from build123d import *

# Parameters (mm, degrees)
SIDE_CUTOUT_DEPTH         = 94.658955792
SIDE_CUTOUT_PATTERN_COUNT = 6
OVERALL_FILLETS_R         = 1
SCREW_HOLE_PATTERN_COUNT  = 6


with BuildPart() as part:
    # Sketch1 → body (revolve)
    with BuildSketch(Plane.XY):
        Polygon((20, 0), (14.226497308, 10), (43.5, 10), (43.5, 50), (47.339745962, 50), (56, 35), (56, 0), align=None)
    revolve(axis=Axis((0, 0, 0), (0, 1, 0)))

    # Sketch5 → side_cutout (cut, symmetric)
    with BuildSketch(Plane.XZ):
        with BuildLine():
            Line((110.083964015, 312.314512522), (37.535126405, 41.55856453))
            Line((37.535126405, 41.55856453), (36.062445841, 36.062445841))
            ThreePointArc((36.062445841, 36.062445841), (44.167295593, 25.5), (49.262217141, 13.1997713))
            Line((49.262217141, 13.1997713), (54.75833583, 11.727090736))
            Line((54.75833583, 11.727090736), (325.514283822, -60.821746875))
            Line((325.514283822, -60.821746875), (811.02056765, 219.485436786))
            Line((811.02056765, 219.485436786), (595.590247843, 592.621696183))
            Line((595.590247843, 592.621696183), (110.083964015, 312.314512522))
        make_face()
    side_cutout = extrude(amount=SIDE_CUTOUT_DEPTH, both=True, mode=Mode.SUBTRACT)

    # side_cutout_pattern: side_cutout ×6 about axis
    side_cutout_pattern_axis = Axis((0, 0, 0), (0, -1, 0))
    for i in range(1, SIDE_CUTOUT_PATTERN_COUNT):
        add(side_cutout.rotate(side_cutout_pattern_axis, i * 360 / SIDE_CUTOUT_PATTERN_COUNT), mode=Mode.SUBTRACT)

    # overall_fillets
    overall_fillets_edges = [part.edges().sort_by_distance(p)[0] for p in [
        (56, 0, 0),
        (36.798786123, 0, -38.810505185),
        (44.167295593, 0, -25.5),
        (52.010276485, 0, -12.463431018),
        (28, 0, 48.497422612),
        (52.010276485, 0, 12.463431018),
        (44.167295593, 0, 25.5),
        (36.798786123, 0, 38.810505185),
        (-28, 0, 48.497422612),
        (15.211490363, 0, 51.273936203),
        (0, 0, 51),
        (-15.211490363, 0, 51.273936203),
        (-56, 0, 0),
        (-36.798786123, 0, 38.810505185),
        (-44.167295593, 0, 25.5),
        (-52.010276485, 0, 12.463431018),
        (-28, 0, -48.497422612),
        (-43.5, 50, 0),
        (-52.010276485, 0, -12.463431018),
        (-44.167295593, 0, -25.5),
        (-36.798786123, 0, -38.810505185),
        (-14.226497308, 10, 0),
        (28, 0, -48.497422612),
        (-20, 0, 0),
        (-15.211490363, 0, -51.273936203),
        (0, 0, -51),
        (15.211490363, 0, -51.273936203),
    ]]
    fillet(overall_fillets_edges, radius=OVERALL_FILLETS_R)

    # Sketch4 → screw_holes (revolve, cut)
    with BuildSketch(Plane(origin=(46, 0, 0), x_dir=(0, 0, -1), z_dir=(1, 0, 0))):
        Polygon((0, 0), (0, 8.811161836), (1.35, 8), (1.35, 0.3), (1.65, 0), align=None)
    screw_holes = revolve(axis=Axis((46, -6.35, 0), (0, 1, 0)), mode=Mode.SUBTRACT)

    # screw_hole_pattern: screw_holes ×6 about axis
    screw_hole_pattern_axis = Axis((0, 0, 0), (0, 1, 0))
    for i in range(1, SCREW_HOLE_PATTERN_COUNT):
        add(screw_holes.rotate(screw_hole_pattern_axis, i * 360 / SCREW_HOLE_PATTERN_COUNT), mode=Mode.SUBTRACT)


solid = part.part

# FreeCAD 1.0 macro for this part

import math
import FreeCAD as App
import Part
import Sketcher

V = App.Vector
Q = App.Units.Quantity


def edges_at(feature, points):
    """Names of the edges that pass closest to the given points."""
    edges = feature.Shape.Edges
    near = lambda p: min(range(len(edges)), key=lambda i: edges[i].distToShape(Part.Vertex(*p))[0])
    return sorted({f"Edge{near(p) + 1}" for p in points})

doc = App.newDocument("Part")
body = doc.addObject("PartDesign::Body", "Body")

# Sketch on XY plane
sketch1 = body.newObject("Sketcher::SketchObject", "Sketch")
sketch1.AttachmentSupport = (doc.getObject("XY_Plane"), [""])
sketch1.MapMode = "FlatFace"
sketch1.addGeometry([
    Part.LineSegment(V(14.2, 10, 0), V(20, 0, 0)),  # 0
    Part.LineSegment(V(20, 0, 0), V(56, 0, 0)),  # 1
    Part.LineSegment(V(56, 0, 0), V(56, 35, 0)),  # 2
    Part.LineSegment(V(56, 35, 0), V(47.3, 50, 0)),  # 3
    Part.LineSegment(V(47.3, 50, 0), V(43.5, 50, 0)),  # 4
    Part.LineSegment(V(43.5, 50, 0), V(43.5, 10, 0)),  # 5
    Part.LineSegment(V(43.5, 10, 0), V(14.2, 10, 0)),  # 6
], False)
sketch1.addConstraint([
    Sketcher.Constraint("Coincident", 0, 2, 1, 1),
    Sketcher.Constraint("Coincident", 1, 2, 2, 1),
    Sketcher.Constraint("Coincident", 2, 2, 3, 1),
    Sketcher.Constraint("Coincident", 3, 2, 4, 1),
    Sketcher.Constraint("Coincident", 4, 2, 5, 1),
    Sketcher.Constraint("Coincident", 5, 2, 6, 1),
    Sketcher.Constraint("Coincident", 6, 2, 0, 1),
    Sketcher.Constraint("Horizontal", 1),
    Sketcher.Constraint("Vertical", 2),
    Sketcher.Constraint("Horizontal", 4),
    Sketcher.Constraint("Vertical", 5),
    Sketcher.Constraint("Horizontal", 6),
    Sketcher.Constraint("PointOnObject", 0, 2, -1),
    Sketcher.Constraint("Parallel", 0, 3),
    Sketcher.Constraint("DistanceX", 1, 1, 1, 2, 36.0),
    Sketcher.Constraint("DistanceY", 2, 1, 2, 2, 35.0),
    Sketcher.Constraint("DistanceY", 5, 2, 5, 1, 40.0),
    Sketcher.Constraint("Angle", 0, Q("-60 deg")),
    Sketcher.Constraint("DistanceX", -1, 1, 0, 2, 20.0),
    Sketcher.Constraint("DistanceY", -1, 1, 3, 2, 50.0),
    Sketcher.Constraint("DistanceX", -1, 1, 4, 2, 43.5),
])
revolution = body.newObject("PartDesign::Revolution", "Revolution")
revolution.Profile = sketch1
revolution.ReferenceAxis = (sketch1, ["V_Axis"])
revolution.Angle = 360

# Sketch on XZ plane
sketch2 = body.newObject("Sketcher::SketchObject", "Sketch001")
sketch2.AttachmentSupport = (doc.getObject("XZ_Plane"), [""])
sketch2.MapMode = "FlatFace"
sketch2.addGeometry([
    Part.LineSegment(V(110, 312, 0), V(38, 42, 0)),  # 0
    Part.LineSegment(V(38, 42, 0), V(36, 36, 0)),  # 1
    Part.ArcOfCircle(Part.Circle(V(0, 0, 0), V(0, 0, 1), 51), math.radians(15), math.radians(45)),  # 2
    Part.LineSegment(V(49, 13, 0), V(55, 12, 0)),  # 3
    Part.LineSegment(V(55, 12, 0), V(326, -61, 0)),  # 4
    Part.LineSegment(V(326, -61, 0), V(811, 219, 0)),  # 5
    Part.LineSegment(V(811, 219, 0), V(596, 593, 0)),  # 6
    Part.LineSegment(V(596, 593, 0), V(110, 312, 0)),  # 7
], False)
sketch2.addConstraint([
    Sketcher.Constraint("Coincident", 0, 2, 1, 1),
    Sketcher.Constraint("Coincident", 1, 2, 2, 2),
    Sketcher.Constraint("Coincident", 2, 1, 3, 1),
    Sketcher.Constraint("Coincident", 3, 2, 4, 1),
    Sketcher.Constraint("Coincident", 4, 2, 5, 1),
    Sketcher.Constraint("Coincident", 5, 2, 6, 1),
    Sketcher.Constraint("Coincident", 6, 2, 7, 1),
    Sketcher.Constraint("Coincident", 7, 2, 0, 1),
    Sketcher.Constraint("Coincident", 2, 3, -1, 1),
    Sketcher.Constraint("Parallel", 0, 1),
    Sketcher.Constraint("Perpendicular", 1, 3),
    Sketcher.Constraint("Parallel", 3, 4),
    Sketcher.Constraint("Perpendicular", 5, 6),
    Sketcher.Constraint("Perpendicular", 6, 7),
    Sketcher.Constraint("Equal", 1, 3),
    Sketcher.Constraint("Equal", 0, 4),
    Sketcher.Constraint("Equal", 5, 7),
    Sketcher.Constraint("Radius", 2, 51.0),
    Sketcher.Constraint("Angle", 0, Q("-105 deg")),
    Sketcher.Constraint("Angle", 5, Q("30 deg")),
    Sketcher.Constraint("Distance", 1, 5.690001),
    Sketcher.Constraint("Distance", 6, 430.86064),
    Sketcher.Constraint("DistanceY", -1, 1, 2, 1, 13.199771),
    Sketcher.Constraint("DistanceX", 3, 2, 5, 2, 756.262232),
])
pocket1 = body.newObject("PartDesign::Pocket", "Pocket")
pocket1.Profile = sketch2
pocket1.Length = 189.317912
pocket1.Midplane = True
doc.recompute()

polarpattern = body.newObject("PartDesign::PolarPattern", "PolarPattern")
polarpattern.Originals = [pocket1]
polarpattern.Axis = (doc.getObject("Y_Axis"), [""])
polarpattern.Angle = 360
polarpattern.Occurrences = 6
body.Tip = polarpattern
doc.recompute()

fillet = body.newObject("PartDesign::Fillet", "Fillet")
fillet.Base = (polarpattern, edges_at(polarpattern, [
    (56, 0, 0),
    (36.799, 0, -38.811),
    (44.167, 0, -25.5),
    (52.01, 0, -12.463),
    (28, 0, 48.497),
    (52.01, 0, 12.463),
    (44.167, 0, 25.5),
    (36.799, 0, 38.811),
    (-28, 0, 48.497),
    (15.211, 0, 51.274),
    (0, 0, 51),
    (-15.211, 0, 51.274),
    (-56, 0, 0),
    (-36.799, 0, 38.811),
    (-44.167, 0, 25.5),
    (-52.01, 0, 12.463),
    (-28, 0, -48.497),
    (-43.5, 50, 0),
    (-52.01, 0, -12.463),
    (-44.167, 0, -25.5),
    (-36.799, 0, -38.811),
    (-14.226, 10, 0),
    (28, 0, -48.497),
    (-20, 0, 0),
    (-15.211, 0, -51.274),
    (0, 0, -51),
    (15.211, 0, -51.274),
]))
fillet.Radius = 1

# Sketch on YZ plane
sketch3 = body.newObject("Sketcher::SketchObject", "Sketch002")
sketch3.AttachmentSupport = (doc.getObject("YZ_Plane"), [""])
sketch3.MapMode = "FlatFace"
sketch3.AttachmentOffset = App.Placement(V(0, 0, 46), App.Rotation())
sketch3.addGeometry([
    Part.LineSegment(V(8.81, 0, 0), V(0, 0, 0)),  # 0
    Part.LineSegment(V(0, 0, 0), V(0, -1.65, 0)),  # 1
    Part.LineSegment(V(0, -1.65, 0), V(0.3, -1.35, 0)),  # 2
    Part.LineSegment(V(0.3, -1.35, 0), V(8, -1.35, 0)),  # 3
    Part.LineSegment(V(8, -1.35, 0), V(8.81, 0, 0)),  # 4
], False)
sketch3.addConstraint([
    Sketcher.Constraint("Coincident", 0, 2, 1, 1),
    Sketcher.Constraint("Coincident", 1, 2, 2, 1),
    Sketcher.Constraint("Coincident", 2, 2, 3, 1),
    Sketcher.Constraint("Coincident", 3, 2, 4, 1),
    Sketcher.Constraint("Coincident", 4, 2, 0, 1),
    Sketcher.Constraint("Horizontal", 0),
    Sketcher.Constraint("Vertical", 1),
    Sketcher.Constraint("Horizontal", 3),
    Sketcher.Constraint("Coincident", 0, 2, -1, 1),
    Sketcher.Constraint("Angle", 2, Q("45 deg")),
    Sketcher.Constraint("Angle", 4, Q("59 deg")),
    Sketcher.Constraint("DistanceX", 3, 1, 3, 2, 7.7),
    Sketcher.Constraint("DistanceX", -1, 1, 3, 2, 8.0),
    Sketcher.Constraint("DistanceY", 1, 2, 1, 1, 1.65),
])
groove = body.newObject("PartDesign::Groove", "Groove")
groove.Profile = sketch3
groove.ReferenceAxis = (sketch3, ["H_Axis"])
groove.Angle = 360
doc.recompute()

polarpattern2 = body.newObject("PartDesign::PolarPattern", "PolarPattern001")
polarpattern2.Originals = [groove]
polarpattern2.Axis = (doc.getObject("Y_Axis"), [""])
polarpattern2.Angle = 360
polarpattern2.Occurrences = 6
body.Tip = polarpattern2

doc.recompute()
